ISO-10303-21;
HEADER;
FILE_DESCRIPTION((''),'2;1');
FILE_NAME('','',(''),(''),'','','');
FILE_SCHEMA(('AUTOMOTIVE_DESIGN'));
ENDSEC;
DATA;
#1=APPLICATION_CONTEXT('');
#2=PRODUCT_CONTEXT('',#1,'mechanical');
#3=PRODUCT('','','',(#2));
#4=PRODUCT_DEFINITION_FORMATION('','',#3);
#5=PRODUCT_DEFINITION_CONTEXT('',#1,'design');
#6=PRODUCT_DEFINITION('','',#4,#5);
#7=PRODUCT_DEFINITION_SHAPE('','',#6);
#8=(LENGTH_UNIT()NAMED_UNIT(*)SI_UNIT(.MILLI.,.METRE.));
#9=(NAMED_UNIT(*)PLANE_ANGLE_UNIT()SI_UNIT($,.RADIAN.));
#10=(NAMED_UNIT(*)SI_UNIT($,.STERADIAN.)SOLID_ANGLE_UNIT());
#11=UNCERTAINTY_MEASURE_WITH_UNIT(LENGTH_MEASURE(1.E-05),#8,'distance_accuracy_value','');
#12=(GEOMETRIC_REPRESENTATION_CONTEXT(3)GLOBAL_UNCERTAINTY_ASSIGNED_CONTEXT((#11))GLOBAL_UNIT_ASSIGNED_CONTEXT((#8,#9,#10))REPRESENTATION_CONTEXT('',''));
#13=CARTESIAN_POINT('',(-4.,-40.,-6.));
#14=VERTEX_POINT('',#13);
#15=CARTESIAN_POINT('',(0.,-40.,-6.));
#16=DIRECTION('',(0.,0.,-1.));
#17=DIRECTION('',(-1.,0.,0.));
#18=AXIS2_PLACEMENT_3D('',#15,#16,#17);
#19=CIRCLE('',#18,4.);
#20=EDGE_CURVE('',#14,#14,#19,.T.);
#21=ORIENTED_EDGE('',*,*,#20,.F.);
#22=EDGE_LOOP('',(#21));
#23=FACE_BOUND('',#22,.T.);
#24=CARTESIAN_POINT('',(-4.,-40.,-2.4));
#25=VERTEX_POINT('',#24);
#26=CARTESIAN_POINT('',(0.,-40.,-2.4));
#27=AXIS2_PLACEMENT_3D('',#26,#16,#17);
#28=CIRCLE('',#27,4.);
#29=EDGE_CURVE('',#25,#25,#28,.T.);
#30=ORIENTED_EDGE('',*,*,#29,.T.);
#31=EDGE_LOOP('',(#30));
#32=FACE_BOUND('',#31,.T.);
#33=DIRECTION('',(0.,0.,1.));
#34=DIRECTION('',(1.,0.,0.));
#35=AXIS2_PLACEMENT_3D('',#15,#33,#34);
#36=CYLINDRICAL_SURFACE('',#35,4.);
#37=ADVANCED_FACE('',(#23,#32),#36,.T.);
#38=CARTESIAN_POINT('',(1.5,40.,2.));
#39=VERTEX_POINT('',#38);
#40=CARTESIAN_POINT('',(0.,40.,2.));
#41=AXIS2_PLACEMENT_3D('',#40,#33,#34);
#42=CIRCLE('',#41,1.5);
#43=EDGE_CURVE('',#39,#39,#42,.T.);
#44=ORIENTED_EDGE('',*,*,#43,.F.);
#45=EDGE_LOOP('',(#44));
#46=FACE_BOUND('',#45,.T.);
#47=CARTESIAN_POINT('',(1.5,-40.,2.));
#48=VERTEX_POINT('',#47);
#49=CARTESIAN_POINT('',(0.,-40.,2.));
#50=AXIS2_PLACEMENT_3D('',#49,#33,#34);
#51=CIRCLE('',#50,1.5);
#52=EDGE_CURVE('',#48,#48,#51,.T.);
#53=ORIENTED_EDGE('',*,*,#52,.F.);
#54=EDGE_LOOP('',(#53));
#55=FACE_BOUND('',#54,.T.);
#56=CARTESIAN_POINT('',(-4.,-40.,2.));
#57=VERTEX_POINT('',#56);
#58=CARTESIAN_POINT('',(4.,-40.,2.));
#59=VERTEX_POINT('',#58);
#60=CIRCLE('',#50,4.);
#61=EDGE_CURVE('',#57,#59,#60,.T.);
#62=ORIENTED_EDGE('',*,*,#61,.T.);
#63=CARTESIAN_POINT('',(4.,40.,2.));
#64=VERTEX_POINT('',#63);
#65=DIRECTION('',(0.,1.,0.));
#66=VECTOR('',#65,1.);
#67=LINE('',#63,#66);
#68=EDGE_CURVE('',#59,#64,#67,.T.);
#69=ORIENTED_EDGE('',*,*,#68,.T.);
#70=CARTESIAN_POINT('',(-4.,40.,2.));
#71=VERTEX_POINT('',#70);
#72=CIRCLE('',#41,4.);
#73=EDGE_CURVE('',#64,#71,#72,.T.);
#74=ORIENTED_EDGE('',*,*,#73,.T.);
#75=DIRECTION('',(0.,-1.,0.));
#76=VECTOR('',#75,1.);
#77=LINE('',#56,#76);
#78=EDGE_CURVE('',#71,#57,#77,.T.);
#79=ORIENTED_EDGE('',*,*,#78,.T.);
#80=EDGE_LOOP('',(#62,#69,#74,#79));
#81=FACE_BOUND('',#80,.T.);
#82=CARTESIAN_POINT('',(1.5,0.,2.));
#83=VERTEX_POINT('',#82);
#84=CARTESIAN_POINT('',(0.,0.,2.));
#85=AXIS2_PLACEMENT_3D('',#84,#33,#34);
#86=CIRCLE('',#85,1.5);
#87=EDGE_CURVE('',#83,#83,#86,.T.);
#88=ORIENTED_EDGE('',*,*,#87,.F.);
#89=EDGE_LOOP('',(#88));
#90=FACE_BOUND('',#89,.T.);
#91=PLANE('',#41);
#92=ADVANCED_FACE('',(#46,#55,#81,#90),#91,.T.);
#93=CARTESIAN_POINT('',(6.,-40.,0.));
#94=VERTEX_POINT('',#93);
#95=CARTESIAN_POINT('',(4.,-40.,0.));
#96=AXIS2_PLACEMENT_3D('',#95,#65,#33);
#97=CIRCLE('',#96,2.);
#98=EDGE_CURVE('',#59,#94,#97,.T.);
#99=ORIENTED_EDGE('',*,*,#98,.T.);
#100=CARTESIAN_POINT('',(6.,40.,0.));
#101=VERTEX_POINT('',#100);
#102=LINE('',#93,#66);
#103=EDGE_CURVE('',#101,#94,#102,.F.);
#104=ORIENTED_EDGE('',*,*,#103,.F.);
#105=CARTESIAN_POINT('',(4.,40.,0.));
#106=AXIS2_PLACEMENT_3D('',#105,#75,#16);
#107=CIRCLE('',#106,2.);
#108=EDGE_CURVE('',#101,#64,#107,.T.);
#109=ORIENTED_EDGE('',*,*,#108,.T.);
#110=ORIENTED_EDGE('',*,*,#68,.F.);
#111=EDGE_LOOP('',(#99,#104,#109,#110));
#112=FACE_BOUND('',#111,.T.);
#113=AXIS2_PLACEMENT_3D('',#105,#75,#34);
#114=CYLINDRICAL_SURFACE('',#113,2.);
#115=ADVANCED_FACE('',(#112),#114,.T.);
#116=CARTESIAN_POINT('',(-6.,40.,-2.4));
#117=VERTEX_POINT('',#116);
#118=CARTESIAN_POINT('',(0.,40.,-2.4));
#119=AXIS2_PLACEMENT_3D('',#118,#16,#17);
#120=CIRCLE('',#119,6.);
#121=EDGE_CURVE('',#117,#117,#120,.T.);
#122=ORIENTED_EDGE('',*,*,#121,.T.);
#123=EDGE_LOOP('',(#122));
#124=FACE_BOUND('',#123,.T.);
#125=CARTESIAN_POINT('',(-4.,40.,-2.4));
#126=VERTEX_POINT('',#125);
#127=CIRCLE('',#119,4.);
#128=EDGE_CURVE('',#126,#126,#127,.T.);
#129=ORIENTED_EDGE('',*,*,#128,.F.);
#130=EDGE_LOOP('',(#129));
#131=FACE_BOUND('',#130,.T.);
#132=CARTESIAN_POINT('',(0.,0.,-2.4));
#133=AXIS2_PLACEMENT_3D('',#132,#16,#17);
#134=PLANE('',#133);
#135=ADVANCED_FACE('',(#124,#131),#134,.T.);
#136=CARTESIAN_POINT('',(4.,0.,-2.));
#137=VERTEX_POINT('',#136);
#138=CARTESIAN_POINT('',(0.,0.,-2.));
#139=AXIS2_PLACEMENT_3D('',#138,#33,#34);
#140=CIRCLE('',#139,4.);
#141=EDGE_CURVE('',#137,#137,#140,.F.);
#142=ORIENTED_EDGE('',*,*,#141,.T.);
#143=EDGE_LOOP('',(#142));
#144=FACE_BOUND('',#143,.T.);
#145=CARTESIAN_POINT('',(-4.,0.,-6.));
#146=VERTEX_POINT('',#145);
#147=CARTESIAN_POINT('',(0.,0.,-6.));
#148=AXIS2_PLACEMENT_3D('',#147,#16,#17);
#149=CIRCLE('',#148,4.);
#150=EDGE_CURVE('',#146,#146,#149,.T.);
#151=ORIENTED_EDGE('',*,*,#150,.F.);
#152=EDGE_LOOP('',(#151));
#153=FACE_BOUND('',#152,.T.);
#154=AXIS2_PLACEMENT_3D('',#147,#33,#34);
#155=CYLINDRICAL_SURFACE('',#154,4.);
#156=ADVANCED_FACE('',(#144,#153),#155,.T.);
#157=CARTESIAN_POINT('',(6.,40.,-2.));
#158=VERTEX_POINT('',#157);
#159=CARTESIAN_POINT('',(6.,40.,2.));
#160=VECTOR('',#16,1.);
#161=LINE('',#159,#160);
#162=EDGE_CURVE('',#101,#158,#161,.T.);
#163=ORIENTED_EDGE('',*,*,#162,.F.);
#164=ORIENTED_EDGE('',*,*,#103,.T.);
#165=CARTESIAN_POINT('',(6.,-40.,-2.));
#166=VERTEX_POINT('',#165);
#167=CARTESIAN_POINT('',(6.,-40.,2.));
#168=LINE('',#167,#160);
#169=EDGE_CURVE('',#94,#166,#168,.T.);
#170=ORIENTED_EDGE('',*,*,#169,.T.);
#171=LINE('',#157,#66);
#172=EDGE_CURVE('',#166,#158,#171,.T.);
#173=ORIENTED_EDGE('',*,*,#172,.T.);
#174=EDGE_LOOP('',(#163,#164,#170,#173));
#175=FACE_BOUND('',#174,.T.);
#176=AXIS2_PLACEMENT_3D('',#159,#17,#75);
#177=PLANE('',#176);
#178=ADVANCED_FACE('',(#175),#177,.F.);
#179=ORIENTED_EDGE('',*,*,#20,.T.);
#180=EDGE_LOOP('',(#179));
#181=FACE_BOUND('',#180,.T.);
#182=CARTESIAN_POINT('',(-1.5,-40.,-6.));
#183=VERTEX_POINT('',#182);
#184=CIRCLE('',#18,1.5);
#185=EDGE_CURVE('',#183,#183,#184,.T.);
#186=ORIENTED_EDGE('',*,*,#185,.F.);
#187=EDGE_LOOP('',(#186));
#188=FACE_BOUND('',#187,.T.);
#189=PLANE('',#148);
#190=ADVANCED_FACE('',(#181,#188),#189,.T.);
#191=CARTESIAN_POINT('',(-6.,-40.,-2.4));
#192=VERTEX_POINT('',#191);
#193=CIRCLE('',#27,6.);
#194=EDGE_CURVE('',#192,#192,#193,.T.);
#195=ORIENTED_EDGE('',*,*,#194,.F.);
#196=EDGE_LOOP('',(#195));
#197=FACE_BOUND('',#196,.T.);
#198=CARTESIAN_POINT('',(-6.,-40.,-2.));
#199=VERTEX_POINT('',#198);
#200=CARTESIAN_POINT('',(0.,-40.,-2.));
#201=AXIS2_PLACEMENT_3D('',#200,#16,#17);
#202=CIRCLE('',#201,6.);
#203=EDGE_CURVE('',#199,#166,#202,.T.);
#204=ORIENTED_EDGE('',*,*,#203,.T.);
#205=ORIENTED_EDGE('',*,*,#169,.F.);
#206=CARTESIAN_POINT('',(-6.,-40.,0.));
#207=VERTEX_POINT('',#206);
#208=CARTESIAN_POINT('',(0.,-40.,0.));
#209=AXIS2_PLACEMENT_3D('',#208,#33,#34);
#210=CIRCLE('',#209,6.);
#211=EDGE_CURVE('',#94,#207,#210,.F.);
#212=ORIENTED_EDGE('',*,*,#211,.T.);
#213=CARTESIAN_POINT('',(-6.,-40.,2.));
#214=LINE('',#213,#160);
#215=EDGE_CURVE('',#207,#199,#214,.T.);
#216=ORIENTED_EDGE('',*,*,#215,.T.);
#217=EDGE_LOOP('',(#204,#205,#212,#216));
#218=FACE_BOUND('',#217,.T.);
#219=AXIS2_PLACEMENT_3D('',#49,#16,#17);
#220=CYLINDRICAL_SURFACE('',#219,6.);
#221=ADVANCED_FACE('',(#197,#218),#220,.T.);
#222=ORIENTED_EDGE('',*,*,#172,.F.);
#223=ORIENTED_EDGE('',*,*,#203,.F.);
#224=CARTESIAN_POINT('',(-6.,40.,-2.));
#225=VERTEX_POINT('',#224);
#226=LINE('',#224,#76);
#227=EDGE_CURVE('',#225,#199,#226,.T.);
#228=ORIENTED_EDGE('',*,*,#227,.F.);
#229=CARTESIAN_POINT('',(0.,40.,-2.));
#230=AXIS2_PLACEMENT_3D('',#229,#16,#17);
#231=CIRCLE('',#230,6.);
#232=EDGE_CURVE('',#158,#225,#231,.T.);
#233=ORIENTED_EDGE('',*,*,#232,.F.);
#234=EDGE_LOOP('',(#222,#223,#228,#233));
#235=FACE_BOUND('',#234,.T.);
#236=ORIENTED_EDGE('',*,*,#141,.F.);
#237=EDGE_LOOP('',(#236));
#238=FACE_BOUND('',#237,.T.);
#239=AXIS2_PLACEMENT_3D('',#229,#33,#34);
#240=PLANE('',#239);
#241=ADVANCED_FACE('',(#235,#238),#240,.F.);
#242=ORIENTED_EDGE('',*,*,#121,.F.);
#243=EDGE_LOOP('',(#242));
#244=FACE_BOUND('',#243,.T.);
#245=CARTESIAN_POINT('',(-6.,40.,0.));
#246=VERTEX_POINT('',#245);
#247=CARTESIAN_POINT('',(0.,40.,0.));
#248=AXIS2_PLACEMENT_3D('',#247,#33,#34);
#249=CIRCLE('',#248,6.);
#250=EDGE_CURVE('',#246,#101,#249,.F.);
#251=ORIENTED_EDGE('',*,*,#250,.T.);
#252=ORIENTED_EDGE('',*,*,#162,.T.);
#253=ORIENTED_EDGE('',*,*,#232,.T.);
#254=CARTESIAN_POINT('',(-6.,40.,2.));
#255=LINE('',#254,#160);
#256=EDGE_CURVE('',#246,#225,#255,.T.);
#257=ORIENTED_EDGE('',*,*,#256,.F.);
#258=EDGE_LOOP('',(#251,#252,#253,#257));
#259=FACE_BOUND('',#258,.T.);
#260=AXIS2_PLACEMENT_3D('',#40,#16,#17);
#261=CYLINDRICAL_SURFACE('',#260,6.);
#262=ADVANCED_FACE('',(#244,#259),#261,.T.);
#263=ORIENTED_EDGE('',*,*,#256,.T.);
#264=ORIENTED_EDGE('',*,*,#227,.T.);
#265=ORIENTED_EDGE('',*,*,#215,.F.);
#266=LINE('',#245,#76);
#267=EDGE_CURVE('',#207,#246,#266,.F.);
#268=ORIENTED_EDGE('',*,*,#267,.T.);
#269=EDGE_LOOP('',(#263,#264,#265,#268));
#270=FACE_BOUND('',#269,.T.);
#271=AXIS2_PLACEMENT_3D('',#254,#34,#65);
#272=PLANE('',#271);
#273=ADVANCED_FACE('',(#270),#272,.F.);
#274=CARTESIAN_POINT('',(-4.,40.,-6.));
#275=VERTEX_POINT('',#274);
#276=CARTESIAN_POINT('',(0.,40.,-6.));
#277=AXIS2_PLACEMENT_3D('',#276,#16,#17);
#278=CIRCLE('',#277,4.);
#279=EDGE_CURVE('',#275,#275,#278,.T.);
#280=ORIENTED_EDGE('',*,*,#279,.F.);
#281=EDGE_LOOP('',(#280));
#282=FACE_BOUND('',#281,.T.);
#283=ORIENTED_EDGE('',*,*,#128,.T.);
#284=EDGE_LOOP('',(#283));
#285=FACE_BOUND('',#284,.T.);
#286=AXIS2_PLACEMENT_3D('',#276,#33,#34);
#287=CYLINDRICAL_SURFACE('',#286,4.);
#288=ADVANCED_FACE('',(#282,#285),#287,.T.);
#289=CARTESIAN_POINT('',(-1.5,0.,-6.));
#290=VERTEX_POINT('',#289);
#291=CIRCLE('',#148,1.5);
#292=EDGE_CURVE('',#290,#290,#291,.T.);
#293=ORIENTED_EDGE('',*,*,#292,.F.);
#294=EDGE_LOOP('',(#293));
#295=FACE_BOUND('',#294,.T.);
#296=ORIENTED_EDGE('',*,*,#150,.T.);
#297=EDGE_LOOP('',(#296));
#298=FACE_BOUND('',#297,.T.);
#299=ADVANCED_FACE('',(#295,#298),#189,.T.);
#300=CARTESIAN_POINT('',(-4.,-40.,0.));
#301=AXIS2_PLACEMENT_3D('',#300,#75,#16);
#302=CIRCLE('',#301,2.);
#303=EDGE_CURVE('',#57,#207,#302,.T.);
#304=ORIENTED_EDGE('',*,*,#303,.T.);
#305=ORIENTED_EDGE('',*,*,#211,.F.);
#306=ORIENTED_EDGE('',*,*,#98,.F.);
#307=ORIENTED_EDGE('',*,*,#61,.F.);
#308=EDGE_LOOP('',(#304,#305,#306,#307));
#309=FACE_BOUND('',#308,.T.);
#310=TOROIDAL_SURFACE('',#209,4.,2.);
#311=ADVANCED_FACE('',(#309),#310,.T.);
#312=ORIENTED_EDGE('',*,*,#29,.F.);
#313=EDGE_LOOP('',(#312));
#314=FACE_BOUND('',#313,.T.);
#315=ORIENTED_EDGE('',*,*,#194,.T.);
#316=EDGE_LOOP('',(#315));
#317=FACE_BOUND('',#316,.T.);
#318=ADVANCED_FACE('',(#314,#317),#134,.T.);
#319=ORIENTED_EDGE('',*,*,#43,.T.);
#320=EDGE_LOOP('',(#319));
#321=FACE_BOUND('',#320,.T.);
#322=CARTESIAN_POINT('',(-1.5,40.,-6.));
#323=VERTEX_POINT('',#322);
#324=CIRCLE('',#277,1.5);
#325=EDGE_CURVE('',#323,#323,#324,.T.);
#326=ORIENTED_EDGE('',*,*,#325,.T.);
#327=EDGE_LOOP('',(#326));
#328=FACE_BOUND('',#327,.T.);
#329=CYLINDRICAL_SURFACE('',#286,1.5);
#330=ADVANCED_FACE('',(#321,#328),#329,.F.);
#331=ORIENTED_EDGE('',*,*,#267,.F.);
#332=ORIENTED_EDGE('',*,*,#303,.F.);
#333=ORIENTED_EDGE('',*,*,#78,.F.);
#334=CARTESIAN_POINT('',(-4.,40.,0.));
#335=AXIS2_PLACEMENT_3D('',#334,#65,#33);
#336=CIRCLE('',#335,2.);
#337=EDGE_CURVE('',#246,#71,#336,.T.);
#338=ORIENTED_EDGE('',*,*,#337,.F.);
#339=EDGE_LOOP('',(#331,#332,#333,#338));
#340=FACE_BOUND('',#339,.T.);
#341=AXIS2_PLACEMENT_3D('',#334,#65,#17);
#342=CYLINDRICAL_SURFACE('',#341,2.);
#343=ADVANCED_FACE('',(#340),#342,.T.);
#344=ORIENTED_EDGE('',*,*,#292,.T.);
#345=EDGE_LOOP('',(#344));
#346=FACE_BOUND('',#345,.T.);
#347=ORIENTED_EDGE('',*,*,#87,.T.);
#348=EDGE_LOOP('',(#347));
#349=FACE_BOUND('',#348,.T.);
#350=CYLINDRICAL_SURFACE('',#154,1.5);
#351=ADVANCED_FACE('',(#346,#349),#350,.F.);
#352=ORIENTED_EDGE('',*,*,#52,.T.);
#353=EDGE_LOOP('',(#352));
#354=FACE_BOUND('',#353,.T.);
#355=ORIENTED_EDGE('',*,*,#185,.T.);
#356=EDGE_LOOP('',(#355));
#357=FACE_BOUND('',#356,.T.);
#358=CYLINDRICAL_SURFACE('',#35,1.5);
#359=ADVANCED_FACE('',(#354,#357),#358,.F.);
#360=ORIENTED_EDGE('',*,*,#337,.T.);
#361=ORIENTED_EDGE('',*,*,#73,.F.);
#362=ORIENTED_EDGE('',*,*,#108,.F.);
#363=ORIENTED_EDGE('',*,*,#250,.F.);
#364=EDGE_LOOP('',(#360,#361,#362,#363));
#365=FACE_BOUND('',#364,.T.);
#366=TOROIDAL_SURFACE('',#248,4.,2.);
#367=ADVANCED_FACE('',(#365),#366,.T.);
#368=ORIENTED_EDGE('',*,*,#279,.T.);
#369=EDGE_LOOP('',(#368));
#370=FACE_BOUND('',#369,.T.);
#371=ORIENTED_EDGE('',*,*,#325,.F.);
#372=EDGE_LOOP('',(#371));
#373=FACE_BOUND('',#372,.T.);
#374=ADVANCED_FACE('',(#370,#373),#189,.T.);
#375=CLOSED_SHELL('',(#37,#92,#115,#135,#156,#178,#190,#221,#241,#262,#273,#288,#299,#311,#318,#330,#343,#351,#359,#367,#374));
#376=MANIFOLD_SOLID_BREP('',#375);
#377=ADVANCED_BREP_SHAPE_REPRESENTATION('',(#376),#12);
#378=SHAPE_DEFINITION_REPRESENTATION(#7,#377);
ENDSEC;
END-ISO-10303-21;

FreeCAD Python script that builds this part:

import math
import FreeCAD as App
import Part
import Sketcher


def edges_at(feature, points):
    """Names of the edges that pass closest to the given points."""
    edges = feature.Shape.Edges
    near = lambda p: min(range(len(edges)), key=lambda i: edges[i].distToShape(Part.Vertex(*p))[0])
    return sorted({f"Edge{near(p) + 1}" for p in points})

doc = App.newDocument("Part")
params = doc.addObject("Spreadsheet::Sheet", "Params")
for row, (alias, value) in enumerate([
    ("sketch1_radius", "6 mm"),
    ("sketch1_height", "80 mm"),
    ("pad1_length", "4 mm"),
    ("sketch2_diameter", "8 mm"),
    ("sketch2_diameter2", "3 mm"),
    ("pad2_length", "4 mm"),
    ("sketch3_diameter", "12 mm"),
    ("sketch3_diameter2", "8 mm"),
    ("pad3_length", "0.4 mm"),
    ("fillet_radius", "2 mm"),
    ("sketch4_diameter", "3 mm"),
    ("pocket1_length", "10 mm"),
], start=1):
    params.set(f"A{row}", alias)
    params.set(f"B{row}", "=" + value)
    params.setAlias(f"B{row}", alias)

body = doc.addObject("PartDesign::Body", "Body")

# Sketch on XY plane
sketch1 = doc.addObject("Sketcher::SketchObject", "Sketch")
body.addObject(sketch1)
sketch1.AttachmentSupport = (doc.XY_Plane, [""])
sketch1.MapMode = "FlatFace"
sketch1.addGeometry(Part.LineSegment(App.Vector(6, -40, 0), App.Vector(6, 40, 0)), False)
sketch1.addGeometry(Part.ArcOfCircle(Part.Circle(App.Vector(0, 40, 0), App.Vector(0, 0, 1), 6), math.radians(0), math.radians(180)), False)
sketch1.addGeometry(Part.LineSegment(App.Vector(-6, 40, 0), App.Vector(-6, -40, 0)), False)
sketch1.addGeometry(Part.ArcOfCircle(Part.Circle(App.Vector(0, -40, 0), App.Vector(0, 0, 1), 6), math.radians(180), math.radians(360)), False)
sketch1.addConstraint(Sketcher.Constraint("Tangent", 0, 2, 1, 1))
sketch1.addConstraint(Sketcher.Constraint("Tangent", 1, 2, 2, 1))
sketch1.addConstraint(Sketcher.Constraint("Tangent", 2, 2, 3, 1))
sketch1.addConstraint(Sketcher.Constraint("Tangent", 3, 2, 0, 1))
sketch1.addConstraint(Sketcher.Constraint("Vertical", 0))
sketch1.addConstraint(Sketcher.Constraint("Vertical", 2))
sketch1.addConstraint(Sketcher.Constraint("Symmetric", 1, 3, 3, 3, -1, 1))
sketch1.addConstraint(Sketcher.Constraint("Radius", 1, 6.0))
sketch1.addConstraint(Sketcher.Constraint("DistanceY", 0, 1, 0, 2, 80.0))
sketch1.setExpression("Constraints[7]", "Params.sketch1_radius")
sketch1.setExpression("Constraints[8]", "Params.sketch1_height")
pad1 = doc.addObject("PartDesign::Pad", "Pad")
body.addObject(pad1)
pad1.Profile = sketch1
pad1.setExpression("Length", "Params.pad1_length")
pad1.Midplane = True

# Sketch on XY plane
sketch2 = doc.addObject("Sketcher::SketchObject", "Sketch001")
body.addObject(sketch2)
sketch2.AttachmentSupport = (doc.XY_Plane, [""])
sketch2.MapMode = "FlatFace"
sketch2.AttachmentOffset = App.Placement(App.Vector(0, 0, -2), App.Rotation())
sketch2.addGeometry(Part.Circle(App.Vector(0, 40, 0), App.Vector(0, 0, 1), 4), False)
sketch2.addGeometry(Part.Circle(App.Vector(0, 40, 0), App.Vector(0, 0, 1), 1.5), False)
sketch2.addGeometry(Part.Circle(App.Vector(0, 0, 0), App.Vector(0, 0, 1), 4), False)
sketch2.addGeometry(Part.Circle(App.Vector(0, 0, 0), App.Vector(0, 0, 1), 1.5), False)
sketch2.addGeometry(Part.Circle(App.Vector(0, -40, 0), App.Vector(0, 0, 1), 4), False)
sketch2.addGeometry(Part.Circle(App.Vector(0, -40, 0), App.Vector(0, 0, 1), 1.5), False)
sketch2.addConstraint(Sketcher.Constraint("Coincident", 2, 3, -1, 1))
sketch2.addConstraint(Sketcher.Constraint("Coincident", 3, 3, -1, 1))
sketch2.addConstraint(Sketcher.Constraint("Coincident", 1, 3, 0, 3))
sketch2.addConstraint(Sketcher.Constraint("Coincident", 5, 3, 4, 3))
sketch2.addConstraint(Sketcher.Constraint("Equal", 0, 2))
sketch2.addConstraint(Sketcher.Constraint("Equal", 1, 3))
sketch2.addConstraint(Sketcher.Constraint("Equal", 2, 4))
sketch2.addConstraint(Sketcher.Constraint("Equal", 3, 5))
sketch2.addConstraint(Sketcher.Constraint("Symmetric", 0, 3, 4, 3, -1, 1))
sketch2.addConstraint(Sketcher.Constraint("PointOnObject", 0, 3, -2))
sketch2.addConstraint(Sketcher.Constraint("Diameter", 0, 8.0))
sketch2.addConstraint(Sketcher.Constraint("Diameter", 1, 3.0))
sketch2.addConstraint(Sketcher.Constraint("DistanceY", -1, 1, 0, 3, 40.0))
sketch2.setExpression("Constraints[10]", "Params.sketch2_diameter")
sketch2.setExpression("Constraints[11]", "Params.sketch2_diameter2")
pad2 = doc.addObject("PartDesign::Pad", "Pad001")
body.addObject(pad2)
pad2.Profile = sketch2
pad2.setExpression("Length", "Params.pad2_length")
pad2.Reversed = True

# Sketch on XY plane
sketch3 = doc.addObject("Sketcher::SketchObject", "Sketch002")
body.addObject(sketch3)
sketch3.AttachmentSupport = (doc.XY_Plane, [""])
sketch3.MapMode = "FlatFace"
sketch3.AttachmentOffset = App.Placement(App.Vector(0, 0, -2), App.Rotation())
sketch3.addGeometry(Part.Circle(App.Vector(0, 40, 0), App.Vector(0, 0, 1), 6), False)
sketch3.addGeometry(Part.Circle(App.Vector(0, 40, 0), App.Vector(0, 0, 1), 4), False)
sketch3.addGeometry(Part.Circle(App.Vector(0, -40, 0), App.Vector(0, 0, 1), 6), False)
sketch3.addGeometry(Part.Circle(App.Vector(0, -40, 0), App.Vector(0, 0, 1), 4), False)
sketch3.addConstraint(Sketcher.Constraint("Coincident", 1, 3, 0, 3))
sketch3.addConstraint(Sketcher.Constraint("Coincident", 3, 3, 2, 3))
sketch3.addConstraint(Sketcher.Constraint("Equal", 0, 2))
sketch3.addConstraint(Sketcher.Constraint("Equal", 1, 3))
sketch3.addConstraint(Sketcher.Constraint("Symmetric", 0, 3, 2, 3, -1, 1))
sketch3.addConstraint(Sketcher.Constraint("PointOnObject", 0, 3, -2))
sketch3.addConstraint(Sketcher.Constraint("Diameter", 0, 12.0))
sketch3.addConstraint(Sketcher.Constraint("Diameter", 1, 8.0))
sketch3.addConstraint(Sketcher.Constraint("DistanceY", -1, 1, 0, 3, 40.0))
sketch3.setExpression("Constraints[6]", "Params.sketch3_diameter")
sketch3.setExpression("Constraints[7]", "Params.sketch3_diameter2")
pad3 = doc.addObject("PartDesign::Pad", "Pad002")
body.addObject(pad3)
pad3.Profile = sketch3
pad3.setExpression("Length", "Params.pad3_length")
pad3.Reversed = True
doc.recompute()

fillet = doc.addObject("PartDesign::Fillet", "Fillet")
body.addObject(fillet)
fillet.Base = (pad3, edges_at(pad3, [
    (0, -46, 2),
    (6, 0, 2),
    (0, 46, 2),
    (-6, 0, 2),
]))
fillet.setExpression("Radius", "Params.fillet_radius")

# Sketch on XY plane
sketch4 = doc.addObject("Sketcher::SketchObject", "Sketch003")
body.addObject(sketch4)
sketch4.AttachmentSupport = (doc.XY_Plane, [""])
sketch4.MapMode = "FlatFace"
sketch4.AttachmentOffset = App.Placement(App.Vector(0, 0, -2), App.Rotation())
sketch4.addGeometry(Part.Circle(App.Vector(0, 40, 0), App.Vector(0, 0, 1), 1.5), False)
sketch4.addGeometry(Part.Circle(App.Vector(0, 0, 0), App.Vector(0, 0, 1), 1.5), False)
sketch4.addGeometry(Part.Circle(App.Vector(0, -40, 0), App.Vector(0, 0, 1), 1.5), False)
sketch4.addConstraint(Sketcher.Constraint("Coincident", 1, 3, -1, 1))
sketch4.addConstraint(Sketcher.Constraint("Equal", 0, 1))
sketch4.addConstraint(Sketcher.Constraint("Equal", 1, 2))
sketch4.addConstraint(Sketcher.Constraint("Symmetric", 0, 3, 2, 3, -1, 1))
sketch4.addConstraint(Sketcher.Constraint("PointOnObject", 0, 3, -2))
sketch4.addConstraint(Sketcher.Constraint("Diameter", 0, 3.0))
sketch4.addConstraint(Sketcher.Constraint("DistanceY", -1, 1, 0, 3, 40.0))
sketch4.setExpression("Constraints[5]", "Params.sketch4_diameter")
pocket1 = doc.addObject("PartDesign::Pocket", "Pocket")
body.addObject(pocket1)
pocket1.Profile = sketch4
pocket1.setExpression("Length", "Params.pocket1_length")
pocket1.Midplane = True

doc.recompute()
